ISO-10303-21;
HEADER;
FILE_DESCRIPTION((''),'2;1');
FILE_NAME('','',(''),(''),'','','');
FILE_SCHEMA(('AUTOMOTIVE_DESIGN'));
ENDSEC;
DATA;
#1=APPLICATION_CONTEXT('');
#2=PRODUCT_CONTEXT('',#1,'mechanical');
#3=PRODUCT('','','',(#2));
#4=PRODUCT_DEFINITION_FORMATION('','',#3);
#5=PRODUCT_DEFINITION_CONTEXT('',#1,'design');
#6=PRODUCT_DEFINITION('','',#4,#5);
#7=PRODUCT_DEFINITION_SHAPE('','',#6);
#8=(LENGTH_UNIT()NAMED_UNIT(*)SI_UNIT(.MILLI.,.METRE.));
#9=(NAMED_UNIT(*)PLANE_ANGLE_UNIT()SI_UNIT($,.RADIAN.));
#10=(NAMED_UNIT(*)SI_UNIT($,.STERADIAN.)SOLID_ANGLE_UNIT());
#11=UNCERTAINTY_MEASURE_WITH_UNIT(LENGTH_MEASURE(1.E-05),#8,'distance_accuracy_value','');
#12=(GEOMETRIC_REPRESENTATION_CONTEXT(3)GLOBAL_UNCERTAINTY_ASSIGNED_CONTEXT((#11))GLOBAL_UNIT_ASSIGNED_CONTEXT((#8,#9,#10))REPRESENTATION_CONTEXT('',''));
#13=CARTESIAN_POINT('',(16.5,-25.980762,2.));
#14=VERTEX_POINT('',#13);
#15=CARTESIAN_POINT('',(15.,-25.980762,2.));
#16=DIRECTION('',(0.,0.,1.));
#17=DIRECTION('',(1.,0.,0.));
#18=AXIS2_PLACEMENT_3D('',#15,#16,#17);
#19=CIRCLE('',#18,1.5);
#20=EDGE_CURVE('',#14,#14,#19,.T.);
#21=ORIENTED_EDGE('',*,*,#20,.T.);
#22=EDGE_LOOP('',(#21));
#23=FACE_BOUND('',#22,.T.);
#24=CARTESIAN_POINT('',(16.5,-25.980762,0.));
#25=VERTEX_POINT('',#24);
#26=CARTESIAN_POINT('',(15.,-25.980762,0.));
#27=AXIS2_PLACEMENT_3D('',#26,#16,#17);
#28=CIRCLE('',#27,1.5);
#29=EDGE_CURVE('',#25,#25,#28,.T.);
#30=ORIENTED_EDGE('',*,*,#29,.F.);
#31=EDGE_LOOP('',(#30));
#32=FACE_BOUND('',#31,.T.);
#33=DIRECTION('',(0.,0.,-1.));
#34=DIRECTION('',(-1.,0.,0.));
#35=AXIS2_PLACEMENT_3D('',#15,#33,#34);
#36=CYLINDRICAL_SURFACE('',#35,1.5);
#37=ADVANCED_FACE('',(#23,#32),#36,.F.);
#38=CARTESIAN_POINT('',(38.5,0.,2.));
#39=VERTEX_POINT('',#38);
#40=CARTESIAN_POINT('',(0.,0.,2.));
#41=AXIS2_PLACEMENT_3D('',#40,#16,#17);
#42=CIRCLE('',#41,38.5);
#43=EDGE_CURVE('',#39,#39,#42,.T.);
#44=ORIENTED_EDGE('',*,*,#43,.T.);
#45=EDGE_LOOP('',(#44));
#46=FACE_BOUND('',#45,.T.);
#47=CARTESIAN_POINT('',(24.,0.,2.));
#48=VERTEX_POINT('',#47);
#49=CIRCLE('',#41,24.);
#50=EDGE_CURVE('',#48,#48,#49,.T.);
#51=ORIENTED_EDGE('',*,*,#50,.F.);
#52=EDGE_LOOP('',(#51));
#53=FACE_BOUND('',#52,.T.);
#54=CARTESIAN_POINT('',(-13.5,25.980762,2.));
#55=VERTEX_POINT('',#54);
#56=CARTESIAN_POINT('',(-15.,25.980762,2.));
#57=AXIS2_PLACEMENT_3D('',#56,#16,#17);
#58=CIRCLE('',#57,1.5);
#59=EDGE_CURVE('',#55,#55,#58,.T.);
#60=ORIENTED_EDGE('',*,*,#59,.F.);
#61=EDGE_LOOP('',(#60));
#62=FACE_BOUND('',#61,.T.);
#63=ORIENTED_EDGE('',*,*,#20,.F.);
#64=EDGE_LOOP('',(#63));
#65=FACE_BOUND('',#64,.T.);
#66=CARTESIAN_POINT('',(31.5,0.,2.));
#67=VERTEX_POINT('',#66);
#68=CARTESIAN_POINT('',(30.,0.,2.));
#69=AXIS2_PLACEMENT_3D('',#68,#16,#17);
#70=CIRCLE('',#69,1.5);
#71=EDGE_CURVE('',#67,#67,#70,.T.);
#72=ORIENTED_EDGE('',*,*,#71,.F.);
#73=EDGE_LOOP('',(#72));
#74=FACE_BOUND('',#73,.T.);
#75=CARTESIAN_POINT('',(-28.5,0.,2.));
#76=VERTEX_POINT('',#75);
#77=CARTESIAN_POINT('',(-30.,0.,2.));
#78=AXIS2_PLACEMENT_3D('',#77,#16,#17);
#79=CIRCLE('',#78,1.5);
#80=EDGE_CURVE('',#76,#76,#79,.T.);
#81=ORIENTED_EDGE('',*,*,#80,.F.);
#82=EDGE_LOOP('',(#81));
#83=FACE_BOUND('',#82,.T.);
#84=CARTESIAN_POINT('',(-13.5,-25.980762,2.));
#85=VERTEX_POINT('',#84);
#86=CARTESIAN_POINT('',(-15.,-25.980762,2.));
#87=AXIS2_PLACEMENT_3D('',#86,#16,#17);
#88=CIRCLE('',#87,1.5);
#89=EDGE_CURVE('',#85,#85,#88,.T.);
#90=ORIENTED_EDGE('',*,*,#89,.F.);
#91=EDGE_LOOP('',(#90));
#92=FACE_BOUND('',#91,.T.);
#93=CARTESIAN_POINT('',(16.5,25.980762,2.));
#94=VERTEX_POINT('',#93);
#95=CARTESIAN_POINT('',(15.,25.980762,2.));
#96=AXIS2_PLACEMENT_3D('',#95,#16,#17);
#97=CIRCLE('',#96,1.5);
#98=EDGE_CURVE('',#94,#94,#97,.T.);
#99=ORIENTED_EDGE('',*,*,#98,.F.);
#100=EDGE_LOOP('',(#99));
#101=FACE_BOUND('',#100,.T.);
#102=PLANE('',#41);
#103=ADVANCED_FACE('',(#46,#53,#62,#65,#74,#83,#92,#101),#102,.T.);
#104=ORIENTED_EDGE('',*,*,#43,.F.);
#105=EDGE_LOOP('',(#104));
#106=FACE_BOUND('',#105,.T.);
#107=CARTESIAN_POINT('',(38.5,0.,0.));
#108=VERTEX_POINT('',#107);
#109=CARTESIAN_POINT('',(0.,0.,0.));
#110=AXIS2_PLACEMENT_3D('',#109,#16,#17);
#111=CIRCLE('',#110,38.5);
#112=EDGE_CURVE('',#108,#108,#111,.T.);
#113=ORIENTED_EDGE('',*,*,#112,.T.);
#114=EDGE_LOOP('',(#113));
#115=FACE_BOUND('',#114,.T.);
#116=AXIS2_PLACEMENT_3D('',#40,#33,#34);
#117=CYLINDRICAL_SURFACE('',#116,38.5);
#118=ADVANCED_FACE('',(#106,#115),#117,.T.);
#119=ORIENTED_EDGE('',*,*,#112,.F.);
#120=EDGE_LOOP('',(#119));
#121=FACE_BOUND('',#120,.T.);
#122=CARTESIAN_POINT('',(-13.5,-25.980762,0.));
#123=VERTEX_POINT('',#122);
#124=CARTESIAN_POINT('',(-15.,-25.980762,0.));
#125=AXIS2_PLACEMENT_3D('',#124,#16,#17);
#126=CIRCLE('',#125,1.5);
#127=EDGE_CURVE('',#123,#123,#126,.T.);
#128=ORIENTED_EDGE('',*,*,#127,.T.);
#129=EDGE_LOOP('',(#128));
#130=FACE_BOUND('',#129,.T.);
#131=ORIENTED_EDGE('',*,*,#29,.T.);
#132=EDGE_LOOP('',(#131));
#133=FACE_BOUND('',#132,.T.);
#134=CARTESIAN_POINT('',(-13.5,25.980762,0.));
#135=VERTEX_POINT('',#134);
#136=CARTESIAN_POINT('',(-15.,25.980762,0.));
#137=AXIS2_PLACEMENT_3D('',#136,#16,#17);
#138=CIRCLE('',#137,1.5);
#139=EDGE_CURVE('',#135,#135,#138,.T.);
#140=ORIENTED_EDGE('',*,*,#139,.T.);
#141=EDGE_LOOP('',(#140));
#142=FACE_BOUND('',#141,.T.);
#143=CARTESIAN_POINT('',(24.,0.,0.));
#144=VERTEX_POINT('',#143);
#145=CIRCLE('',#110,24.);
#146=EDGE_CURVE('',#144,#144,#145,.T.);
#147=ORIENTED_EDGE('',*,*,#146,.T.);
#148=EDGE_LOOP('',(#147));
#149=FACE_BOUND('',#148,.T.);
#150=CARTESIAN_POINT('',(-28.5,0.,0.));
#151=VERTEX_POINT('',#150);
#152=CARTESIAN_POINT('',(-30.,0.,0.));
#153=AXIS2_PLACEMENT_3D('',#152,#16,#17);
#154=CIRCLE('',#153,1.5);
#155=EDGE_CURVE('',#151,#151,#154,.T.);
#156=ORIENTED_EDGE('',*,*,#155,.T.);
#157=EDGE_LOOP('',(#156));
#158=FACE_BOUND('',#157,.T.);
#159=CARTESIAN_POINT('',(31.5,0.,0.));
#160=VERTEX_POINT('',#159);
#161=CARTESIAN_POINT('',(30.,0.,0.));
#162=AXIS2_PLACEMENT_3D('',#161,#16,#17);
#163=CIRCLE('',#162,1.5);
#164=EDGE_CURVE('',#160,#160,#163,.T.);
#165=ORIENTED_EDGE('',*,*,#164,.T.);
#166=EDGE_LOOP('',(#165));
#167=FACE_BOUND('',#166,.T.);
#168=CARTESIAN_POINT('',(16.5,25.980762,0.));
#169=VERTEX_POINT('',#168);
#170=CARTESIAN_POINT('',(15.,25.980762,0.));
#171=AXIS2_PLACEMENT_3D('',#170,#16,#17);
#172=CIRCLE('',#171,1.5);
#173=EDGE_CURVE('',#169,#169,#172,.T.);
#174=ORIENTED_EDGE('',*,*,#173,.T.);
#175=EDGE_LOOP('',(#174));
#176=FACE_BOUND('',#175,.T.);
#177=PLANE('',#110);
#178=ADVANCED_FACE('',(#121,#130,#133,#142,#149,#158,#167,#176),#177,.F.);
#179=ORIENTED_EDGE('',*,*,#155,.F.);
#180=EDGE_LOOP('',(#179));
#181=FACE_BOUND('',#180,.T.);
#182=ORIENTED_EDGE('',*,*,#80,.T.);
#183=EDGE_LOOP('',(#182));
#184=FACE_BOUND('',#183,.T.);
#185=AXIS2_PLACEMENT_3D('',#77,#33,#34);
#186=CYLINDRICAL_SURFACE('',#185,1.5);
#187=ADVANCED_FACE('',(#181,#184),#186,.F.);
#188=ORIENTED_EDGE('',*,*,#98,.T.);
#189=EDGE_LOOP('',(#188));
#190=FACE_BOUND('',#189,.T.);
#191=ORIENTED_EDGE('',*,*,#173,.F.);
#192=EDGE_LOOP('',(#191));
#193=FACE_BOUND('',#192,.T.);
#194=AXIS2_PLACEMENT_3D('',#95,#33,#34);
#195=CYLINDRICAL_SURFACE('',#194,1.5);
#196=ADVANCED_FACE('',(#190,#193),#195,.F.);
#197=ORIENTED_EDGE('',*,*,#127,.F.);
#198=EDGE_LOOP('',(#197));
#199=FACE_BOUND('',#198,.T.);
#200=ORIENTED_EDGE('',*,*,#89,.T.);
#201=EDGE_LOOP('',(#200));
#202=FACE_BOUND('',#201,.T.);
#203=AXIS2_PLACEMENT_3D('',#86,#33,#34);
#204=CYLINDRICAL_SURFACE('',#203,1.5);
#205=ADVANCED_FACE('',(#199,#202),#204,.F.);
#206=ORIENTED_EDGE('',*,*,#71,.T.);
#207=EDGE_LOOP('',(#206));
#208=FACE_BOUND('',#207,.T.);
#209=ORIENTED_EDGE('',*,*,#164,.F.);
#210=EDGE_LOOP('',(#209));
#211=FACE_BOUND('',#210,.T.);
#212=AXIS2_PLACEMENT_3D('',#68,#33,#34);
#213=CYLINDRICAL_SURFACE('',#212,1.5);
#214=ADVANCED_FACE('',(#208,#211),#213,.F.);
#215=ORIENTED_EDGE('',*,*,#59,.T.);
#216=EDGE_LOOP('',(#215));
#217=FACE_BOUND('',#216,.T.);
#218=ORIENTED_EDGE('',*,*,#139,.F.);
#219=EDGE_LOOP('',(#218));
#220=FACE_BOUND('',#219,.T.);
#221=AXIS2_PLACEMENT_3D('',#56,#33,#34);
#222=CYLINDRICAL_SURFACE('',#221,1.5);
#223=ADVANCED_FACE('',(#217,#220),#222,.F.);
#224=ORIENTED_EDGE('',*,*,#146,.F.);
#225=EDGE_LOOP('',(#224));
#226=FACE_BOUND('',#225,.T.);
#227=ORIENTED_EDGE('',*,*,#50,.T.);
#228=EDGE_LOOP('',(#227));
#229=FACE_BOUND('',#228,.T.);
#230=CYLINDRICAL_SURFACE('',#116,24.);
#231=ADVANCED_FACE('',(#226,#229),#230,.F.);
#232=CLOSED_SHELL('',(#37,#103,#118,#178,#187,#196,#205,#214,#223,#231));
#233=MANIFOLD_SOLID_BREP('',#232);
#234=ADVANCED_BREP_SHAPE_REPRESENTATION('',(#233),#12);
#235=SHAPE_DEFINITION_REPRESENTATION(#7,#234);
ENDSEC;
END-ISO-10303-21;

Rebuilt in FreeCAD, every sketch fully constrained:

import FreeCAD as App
import Part
import Sketcher

V = App.Vector

doc = App.newDocument("Part")
body = doc.addObject("PartDesign::Body", "Body")

sketch1 = body.newObject("Sketcher::SketchObject", "Sketch")
sketch1.AttachmentSupport = (doc.getObject("XY_Plane"), [""])
sketch1.MapMode = "FlatFace"
sketch1.addGeometry([
    Part.Circle(V(0, 0, 0), V(0, 0, 1), 38.5),
    Part.Circle(V(-15, -26, 0), V(0, 0, 1), 1.5),
    Part.Circle(V(15, -26, 0), V(0, 0, 1), 1.5),
    Part.Circle(V(-30, 0, 0), V(0, 0, 1), 1.5),
    Part.Circle(V(-15, 26, 0), V(0, 0, 1), 1.5),
    Part.Circle(V(0, 0, 0), V(0, 0, 1), 24),
    Part.Circle(V(30, 0, 0), V(0, 0, 1), 1.5),
    Part.Circle(V(15, 26, 0), V(0, 0, 1), 1.5),
], False)
sketch1.addConstraint([
    Sketcher.Constraint("Coincident", 0, 3, -1, 1),
    Sketcher.Constraint("Coincident", 5, 3, -1, 1),
    Sketcher.Constraint("Equal", 1, 2),
    Sketcher.Constraint("Equal", 2, 3),
    Sketcher.Constraint("Equal", 3, 4),
    Sketcher.Constraint("Equal", 4, 6),
    Sketcher.Constraint("Equal", 6, 7),
    Sketcher.Constraint("Symmetric", 2, 3, 4, 3, -1, 1),
    Sketcher.Constraint("Symmetric", 3, 3, 6, 3, -1, 1),
    Sketcher.Constraint("Symmetric", 1, 3, 7, 3, -1, 1),
    Sketcher.Constraint("Symmetric", 1, 3, 2, 3, -2),
    Sketcher.Constraint("PointOnObject", 3, 3, -1),
    Sketcher.Constraint("Diameter", 0, 77.0),
    Sketcher.Constraint("Diameter", 1, 3.0),
    Sketcher.Constraint("Diameter", 5, 48.0),
    Sketcher.Constraint("DistanceX", 1, 3, -1, 1, 15.0),
    Sketcher.Constraint("DistanceX", 3, 3, -1, 1, 30.0),
    Sketcher.Constraint("DistanceY", 1, 3, -1, 1, 25.980762),
])
pad1 = body.newObject("PartDesign::Pad", "Pad")
pad1.Profile = sketch1
pad1.Length = 2

doc.recompute()
